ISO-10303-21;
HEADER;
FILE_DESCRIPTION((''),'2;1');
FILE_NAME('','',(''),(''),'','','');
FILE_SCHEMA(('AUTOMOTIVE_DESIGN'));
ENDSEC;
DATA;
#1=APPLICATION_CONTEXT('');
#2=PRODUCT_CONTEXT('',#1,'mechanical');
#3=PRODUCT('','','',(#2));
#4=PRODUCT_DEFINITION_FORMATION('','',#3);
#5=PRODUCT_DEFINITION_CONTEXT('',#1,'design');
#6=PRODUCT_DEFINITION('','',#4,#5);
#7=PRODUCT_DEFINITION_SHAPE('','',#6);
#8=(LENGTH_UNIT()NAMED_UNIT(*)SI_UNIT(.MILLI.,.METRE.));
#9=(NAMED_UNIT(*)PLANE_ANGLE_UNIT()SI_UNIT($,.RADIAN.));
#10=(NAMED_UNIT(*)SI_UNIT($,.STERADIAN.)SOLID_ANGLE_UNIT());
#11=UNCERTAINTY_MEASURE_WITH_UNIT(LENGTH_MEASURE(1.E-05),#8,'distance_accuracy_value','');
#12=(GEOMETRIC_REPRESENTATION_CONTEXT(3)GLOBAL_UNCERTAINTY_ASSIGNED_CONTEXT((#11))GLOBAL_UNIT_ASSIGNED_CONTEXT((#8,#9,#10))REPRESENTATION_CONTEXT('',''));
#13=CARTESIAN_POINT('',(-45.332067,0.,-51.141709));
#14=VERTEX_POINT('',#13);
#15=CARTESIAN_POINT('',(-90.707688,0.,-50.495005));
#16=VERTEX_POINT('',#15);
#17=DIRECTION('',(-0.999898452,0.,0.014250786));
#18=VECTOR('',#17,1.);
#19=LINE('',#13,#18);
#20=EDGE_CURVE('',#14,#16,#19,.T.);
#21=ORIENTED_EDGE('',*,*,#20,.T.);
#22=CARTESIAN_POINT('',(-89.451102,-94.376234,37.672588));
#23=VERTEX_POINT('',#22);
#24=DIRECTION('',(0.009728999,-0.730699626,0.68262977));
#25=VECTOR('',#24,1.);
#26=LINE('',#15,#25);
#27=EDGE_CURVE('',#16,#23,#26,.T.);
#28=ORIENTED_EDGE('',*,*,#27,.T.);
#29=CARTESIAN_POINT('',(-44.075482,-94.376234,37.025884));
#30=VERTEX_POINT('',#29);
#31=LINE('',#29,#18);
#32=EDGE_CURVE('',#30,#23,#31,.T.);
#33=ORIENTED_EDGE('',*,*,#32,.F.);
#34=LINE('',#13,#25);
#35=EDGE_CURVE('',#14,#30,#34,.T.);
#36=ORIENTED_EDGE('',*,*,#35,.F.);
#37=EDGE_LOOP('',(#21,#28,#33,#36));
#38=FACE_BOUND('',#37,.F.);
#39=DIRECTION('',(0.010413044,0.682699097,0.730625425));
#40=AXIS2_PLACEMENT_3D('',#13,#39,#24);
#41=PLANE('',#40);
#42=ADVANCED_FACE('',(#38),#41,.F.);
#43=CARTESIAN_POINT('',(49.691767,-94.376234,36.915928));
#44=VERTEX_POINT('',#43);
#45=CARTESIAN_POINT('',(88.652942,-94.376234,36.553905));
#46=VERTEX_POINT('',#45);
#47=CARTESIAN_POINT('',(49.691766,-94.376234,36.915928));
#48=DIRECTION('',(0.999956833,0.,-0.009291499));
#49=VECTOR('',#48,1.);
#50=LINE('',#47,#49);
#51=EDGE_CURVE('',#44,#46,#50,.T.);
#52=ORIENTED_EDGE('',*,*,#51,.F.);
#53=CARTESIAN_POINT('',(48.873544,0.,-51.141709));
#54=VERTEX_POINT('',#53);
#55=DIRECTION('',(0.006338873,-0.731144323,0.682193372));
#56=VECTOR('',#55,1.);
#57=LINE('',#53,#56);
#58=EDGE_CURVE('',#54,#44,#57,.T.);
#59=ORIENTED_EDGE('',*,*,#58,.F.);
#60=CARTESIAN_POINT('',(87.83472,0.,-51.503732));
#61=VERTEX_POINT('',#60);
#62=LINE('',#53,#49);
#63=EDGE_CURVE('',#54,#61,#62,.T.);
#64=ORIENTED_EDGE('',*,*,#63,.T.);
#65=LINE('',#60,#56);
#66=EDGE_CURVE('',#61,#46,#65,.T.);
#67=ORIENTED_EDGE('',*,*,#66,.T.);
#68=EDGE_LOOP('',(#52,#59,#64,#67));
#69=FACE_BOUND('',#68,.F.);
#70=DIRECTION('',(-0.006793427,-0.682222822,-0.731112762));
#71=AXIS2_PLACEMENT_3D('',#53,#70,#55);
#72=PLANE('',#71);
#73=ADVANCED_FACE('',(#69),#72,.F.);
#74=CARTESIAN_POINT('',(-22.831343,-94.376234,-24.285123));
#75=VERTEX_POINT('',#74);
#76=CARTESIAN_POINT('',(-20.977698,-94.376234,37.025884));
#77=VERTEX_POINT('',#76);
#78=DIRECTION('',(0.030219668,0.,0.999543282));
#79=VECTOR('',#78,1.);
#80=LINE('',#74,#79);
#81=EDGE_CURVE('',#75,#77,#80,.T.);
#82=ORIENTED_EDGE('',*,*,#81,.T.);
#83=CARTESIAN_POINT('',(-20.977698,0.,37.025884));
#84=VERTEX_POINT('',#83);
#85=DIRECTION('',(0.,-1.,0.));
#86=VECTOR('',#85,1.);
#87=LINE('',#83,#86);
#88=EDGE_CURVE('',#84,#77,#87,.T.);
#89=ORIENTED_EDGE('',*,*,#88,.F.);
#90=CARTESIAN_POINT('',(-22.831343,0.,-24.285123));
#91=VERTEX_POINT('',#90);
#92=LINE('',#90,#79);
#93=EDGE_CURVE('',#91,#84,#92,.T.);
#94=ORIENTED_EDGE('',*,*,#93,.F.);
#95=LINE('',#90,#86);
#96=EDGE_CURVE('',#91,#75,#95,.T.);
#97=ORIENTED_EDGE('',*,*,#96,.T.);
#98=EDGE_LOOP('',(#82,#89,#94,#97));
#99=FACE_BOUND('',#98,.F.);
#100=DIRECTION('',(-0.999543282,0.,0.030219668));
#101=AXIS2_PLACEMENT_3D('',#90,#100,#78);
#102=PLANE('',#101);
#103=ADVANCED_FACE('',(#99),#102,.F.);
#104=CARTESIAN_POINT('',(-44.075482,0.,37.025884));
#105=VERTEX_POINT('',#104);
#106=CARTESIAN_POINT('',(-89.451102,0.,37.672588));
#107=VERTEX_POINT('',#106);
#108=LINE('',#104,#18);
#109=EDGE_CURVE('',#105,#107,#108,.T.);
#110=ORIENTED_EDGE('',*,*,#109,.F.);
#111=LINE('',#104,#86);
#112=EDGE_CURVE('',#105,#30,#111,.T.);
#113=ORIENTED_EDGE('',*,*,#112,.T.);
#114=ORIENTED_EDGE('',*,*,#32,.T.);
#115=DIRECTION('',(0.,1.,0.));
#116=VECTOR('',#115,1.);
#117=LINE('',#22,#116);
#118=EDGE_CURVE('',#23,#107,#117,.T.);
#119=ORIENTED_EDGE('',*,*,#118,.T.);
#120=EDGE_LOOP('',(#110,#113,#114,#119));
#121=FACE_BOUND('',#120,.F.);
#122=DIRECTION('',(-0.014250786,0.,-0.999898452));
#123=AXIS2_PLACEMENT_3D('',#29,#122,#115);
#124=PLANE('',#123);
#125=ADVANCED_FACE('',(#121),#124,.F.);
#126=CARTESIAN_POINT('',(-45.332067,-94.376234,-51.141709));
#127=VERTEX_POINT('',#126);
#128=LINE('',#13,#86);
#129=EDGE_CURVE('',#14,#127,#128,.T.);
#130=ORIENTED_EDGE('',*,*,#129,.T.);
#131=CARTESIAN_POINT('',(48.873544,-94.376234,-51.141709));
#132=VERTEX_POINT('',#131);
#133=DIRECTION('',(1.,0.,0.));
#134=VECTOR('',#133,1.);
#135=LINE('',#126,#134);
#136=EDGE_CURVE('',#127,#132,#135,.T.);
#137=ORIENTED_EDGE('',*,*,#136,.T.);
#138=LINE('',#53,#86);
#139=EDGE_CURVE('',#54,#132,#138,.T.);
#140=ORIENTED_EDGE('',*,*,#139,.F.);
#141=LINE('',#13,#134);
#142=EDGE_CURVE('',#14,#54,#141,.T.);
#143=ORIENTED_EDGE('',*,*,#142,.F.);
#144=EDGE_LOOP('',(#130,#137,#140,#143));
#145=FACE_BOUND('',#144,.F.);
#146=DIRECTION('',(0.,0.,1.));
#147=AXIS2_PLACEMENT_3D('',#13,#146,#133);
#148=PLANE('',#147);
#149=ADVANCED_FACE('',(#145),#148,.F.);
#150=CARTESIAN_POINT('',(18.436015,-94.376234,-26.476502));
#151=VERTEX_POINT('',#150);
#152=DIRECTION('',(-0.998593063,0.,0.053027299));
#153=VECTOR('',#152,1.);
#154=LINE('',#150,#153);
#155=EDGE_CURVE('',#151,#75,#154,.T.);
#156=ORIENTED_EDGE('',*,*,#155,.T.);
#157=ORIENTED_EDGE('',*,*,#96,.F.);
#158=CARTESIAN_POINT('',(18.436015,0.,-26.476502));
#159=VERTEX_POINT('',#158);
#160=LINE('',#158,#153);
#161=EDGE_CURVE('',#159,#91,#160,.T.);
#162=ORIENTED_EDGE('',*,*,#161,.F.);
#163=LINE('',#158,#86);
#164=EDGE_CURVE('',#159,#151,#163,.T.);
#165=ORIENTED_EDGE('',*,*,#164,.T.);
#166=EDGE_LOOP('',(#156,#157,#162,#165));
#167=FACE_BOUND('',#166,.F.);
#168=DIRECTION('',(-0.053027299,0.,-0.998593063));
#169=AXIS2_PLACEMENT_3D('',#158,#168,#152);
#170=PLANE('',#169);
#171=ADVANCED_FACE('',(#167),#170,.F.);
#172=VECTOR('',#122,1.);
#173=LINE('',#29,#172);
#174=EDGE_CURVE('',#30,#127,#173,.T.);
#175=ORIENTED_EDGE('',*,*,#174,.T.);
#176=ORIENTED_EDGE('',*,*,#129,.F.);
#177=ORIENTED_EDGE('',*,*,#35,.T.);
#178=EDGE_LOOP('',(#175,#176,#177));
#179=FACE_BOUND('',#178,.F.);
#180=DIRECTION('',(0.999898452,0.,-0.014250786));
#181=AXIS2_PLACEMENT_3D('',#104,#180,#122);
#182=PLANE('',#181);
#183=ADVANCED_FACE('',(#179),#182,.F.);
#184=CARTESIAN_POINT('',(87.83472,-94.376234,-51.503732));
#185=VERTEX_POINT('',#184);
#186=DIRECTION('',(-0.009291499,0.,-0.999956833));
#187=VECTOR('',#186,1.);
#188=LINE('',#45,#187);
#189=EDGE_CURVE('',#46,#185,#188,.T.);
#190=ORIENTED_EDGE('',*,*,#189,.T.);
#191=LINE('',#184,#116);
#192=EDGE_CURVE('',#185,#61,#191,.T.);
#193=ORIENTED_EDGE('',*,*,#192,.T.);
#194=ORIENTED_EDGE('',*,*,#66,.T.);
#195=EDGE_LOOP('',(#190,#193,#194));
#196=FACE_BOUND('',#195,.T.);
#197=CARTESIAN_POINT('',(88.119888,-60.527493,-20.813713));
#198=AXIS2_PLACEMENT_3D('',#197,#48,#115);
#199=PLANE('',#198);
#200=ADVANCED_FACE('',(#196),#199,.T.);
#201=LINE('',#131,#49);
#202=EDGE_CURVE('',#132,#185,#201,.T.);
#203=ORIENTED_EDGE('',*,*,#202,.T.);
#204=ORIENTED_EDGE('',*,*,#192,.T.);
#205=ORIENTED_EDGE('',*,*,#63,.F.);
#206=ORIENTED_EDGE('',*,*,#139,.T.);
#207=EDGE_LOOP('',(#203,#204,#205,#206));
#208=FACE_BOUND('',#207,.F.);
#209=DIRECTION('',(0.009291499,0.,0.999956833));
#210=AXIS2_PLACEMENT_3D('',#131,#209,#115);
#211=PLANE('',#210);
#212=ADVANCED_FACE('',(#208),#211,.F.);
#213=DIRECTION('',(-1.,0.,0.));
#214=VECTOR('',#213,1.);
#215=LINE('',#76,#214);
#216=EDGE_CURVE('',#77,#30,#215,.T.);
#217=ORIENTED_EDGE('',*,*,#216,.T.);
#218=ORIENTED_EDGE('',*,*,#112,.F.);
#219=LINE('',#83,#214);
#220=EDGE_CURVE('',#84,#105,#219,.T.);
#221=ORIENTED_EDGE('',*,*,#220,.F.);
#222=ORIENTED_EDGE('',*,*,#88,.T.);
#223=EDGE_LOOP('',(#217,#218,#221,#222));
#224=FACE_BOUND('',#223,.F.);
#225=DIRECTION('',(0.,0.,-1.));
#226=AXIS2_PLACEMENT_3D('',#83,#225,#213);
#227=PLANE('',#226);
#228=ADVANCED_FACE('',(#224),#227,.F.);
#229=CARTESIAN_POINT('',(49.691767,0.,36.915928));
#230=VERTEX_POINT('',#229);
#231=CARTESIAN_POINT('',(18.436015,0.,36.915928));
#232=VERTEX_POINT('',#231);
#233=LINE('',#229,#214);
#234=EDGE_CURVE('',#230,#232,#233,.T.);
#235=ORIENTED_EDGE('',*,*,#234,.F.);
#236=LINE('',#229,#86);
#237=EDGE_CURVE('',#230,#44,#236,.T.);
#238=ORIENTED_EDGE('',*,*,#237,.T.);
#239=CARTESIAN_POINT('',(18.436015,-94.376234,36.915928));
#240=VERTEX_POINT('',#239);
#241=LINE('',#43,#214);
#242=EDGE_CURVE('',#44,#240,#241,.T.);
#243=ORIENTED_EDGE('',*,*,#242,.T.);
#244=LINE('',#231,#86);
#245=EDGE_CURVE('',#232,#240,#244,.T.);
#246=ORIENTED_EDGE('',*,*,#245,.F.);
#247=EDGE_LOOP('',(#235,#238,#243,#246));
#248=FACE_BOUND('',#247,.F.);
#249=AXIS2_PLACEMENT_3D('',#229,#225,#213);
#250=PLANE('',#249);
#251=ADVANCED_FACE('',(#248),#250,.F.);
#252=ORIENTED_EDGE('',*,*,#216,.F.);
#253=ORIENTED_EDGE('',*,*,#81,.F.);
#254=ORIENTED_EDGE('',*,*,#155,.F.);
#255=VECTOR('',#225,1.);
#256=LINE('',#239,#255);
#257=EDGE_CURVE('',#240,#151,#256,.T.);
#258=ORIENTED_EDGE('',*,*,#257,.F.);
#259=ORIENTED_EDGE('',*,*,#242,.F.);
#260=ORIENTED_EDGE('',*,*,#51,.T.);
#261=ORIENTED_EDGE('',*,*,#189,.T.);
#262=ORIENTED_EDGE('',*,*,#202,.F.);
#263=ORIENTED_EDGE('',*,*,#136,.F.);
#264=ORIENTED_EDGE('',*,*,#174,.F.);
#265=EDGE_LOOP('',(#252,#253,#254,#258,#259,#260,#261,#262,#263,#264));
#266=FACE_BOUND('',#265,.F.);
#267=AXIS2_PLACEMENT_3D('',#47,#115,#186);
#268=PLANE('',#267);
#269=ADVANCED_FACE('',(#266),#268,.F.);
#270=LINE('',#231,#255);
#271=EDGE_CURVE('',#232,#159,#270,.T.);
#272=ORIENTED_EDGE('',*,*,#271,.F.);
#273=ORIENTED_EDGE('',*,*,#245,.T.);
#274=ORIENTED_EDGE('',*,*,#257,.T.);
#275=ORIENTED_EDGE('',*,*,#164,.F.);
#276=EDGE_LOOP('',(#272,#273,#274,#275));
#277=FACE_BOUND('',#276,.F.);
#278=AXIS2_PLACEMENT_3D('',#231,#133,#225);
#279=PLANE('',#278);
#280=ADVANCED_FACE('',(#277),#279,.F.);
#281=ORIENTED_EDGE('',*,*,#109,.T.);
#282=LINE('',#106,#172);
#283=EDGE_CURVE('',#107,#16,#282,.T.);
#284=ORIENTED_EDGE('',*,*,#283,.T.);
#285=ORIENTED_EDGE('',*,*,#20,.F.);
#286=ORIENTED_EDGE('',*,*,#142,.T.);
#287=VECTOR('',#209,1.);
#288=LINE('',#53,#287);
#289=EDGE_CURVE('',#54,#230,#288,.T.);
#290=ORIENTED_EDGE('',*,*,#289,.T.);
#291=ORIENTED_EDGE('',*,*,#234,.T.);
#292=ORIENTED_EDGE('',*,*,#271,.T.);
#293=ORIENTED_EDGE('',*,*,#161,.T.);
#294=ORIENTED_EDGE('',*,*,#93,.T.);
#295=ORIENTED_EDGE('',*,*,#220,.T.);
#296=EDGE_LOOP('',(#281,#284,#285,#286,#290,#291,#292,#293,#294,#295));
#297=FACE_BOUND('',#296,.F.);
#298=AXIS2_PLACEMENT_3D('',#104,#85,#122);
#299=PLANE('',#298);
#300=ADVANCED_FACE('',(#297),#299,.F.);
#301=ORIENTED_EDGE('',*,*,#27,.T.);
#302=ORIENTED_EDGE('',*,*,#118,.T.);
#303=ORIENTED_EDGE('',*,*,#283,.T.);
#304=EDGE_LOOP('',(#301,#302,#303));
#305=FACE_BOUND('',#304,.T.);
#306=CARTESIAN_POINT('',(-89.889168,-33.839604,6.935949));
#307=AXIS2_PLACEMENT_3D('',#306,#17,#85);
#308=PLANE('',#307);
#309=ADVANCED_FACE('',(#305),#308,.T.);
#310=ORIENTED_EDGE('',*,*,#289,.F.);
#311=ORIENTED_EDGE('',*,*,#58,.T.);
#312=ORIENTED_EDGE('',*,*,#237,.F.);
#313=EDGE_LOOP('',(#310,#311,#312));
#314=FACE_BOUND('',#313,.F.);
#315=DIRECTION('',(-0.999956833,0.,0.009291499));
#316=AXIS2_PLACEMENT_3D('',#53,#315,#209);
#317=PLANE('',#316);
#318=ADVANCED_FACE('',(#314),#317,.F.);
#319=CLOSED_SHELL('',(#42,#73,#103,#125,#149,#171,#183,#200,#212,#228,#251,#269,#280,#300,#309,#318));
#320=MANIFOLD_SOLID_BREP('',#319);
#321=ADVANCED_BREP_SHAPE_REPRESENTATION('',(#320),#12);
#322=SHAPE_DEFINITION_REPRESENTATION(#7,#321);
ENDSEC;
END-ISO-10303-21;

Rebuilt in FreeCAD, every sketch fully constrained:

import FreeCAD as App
import Part
import Sketcher

V = App.Vector

doc = App.newDocument("Part")
params = doc.addObject("Spreadsheet::Sheet", "Params")
for row, (alias, value) in enumerate([
    ("pad1_length", "94.376234 mm"),
    ("pad2_length", "45.380229 mm"),
    ("pad3_length", "38.962858 mm"),
], start=1):
    params.set(f"A{row}", alias)
    params.set(f"B{row}", "=" + value)
    params.setAlias(f"B{row}", alias)

body = doc.addObject("PartDesign::Body", "Body")

# Sketch on XZ plane
sketch1 = body.newObject("Sketcher::SketchObject", "Sketch")
sketch1.AttachmentSupport = (doc.getObject("XZ_Plane"), [""])
sketch1.MapMode = "FlatFace"
sketch1.addGeometry([
    Part.LineSegment(V(-20.977698, 37.025884, 0), V(-44.075482, 37.025884, 0)),  # 0
    Part.LineSegment(V(-44.075482, 37.025884, 0), V(-45.332067, -51.141709, 0)),  # 1
    Part.LineSegment(V(-45.332067, -51.141709, 0), V(48.873544, -51.141709, 0)),  # 2
    Part.LineSegment(V(48.873544, -51.141709, 0), V(49.691767, 36.915928, 0)),  # 3
    Part.LineSegment(V(49.691767, 36.915928, 0), V(18.436015, 36.915928, 0)),  # 4
    Part.LineSegment(V(18.436015, 36.915928, 0), V(18.436015, -26.476502, 0)),  # 5
    Part.LineSegment(V(18.436015, -26.476502, 0), V(-22.831343, -24.285123, 0)),  # 6
    Part.LineSegment(V(-22.831343, -24.285123, 0), V(-20.977698, 37.025884, 0)),  # 7
], False)
sketch1.addConstraint([
    Sketcher.Constraint("Coincident", 0, 2, 1, 1),
    Sketcher.Constraint("Coincident", 1, 2, 2, 1),
    Sketcher.Constraint("Coincident", 2, 2, 3, 1),
    Sketcher.Constraint("Coincident", 3, 2, 4, 1),
    Sketcher.Constraint("Coincident", 4, 2, 5, 1),
    Sketcher.Constraint("Coincident", 5, 2, 6, 1),
    Sketcher.Constraint("Coincident", 6, 2, 7, 1),
    Sketcher.Constraint("Coincident", 7, 2, 0, 1),
    Sketcher.Constraint("Horizontal", 0),
    Sketcher.Constraint("Horizontal", 2),
    Sketcher.Constraint("Horizontal", 4),
    Sketcher.Constraint("Vertical", 5),
    Sketcher.Constraint("Distance", 6, 41.3255),
    Sketcher.Constraint("DistanceX", 2, 1, 2, 2, 94.20561),
    Sketcher.Constraint("DistanceX", 4, 2, 4, 1, 31.255752),
    Sketcher.Constraint("DistanceY", 5, 2, 5, 1, 63.392431),
    Sketcher.Constraint("DistanceX", 7, 2, -1, 1, 20.977698),
    Sketcher.Constraint("Distance", 3, 88.061439),
    Sketcher.Constraint("Distance", 7, 61.339021),
    Sketcher.Constraint("DistanceX", 0, 2, 0, 1, 23.097783),
    Sketcher.Constraint("DistanceY", 1, 2, -1, 1, 51.141709),
    Sketcher.Constraint("DistanceY", -1, 1, 3, 2, 36.915928),
    Sketcher.Constraint("DistanceX", 0, 2, 3, 2, 93.767248),
    Sketcher.Constraint("DistanceY", 5, 2, 6, 2, 2.19138),
])
pad1 = body.newObject("PartDesign::Pad", "Pad")
pad1.Profile = sketch1
pad1.setExpression("Length", "Params.pad1_length")

# Sketch on an angled plane
sketch2 = body.newObject("Sketcher::SketchObject", "Sketch001")
sketch2.Placement = App.Placement(V(-44.594125, 0, 0.635566), App.Rotation(V(0, -1, 0), V(0.014250786, 0, 0.999898452), V(-0.999898452, 0, 0.014250786), "ZXY"))
sketch2.addGeometry([
    Part.LineSegment(V(0, -51.782533, 0), V(94.376234, 36.394014, 0)),
    Part.LineSegment(V(94.376234, 36.394014, 0), V(0, 36.394014, 0)),
    Part.LineSegment(V(0, 36.394014, 0), V(0, -51.782533, 0)),
], False)
sketch2.addConstraint([
    Sketcher.Constraint("Coincident", 0, 2, 1, 1),
    Sketcher.Constraint("Coincident", 1, 2, 2, 1),
    Sketcher.Constraint("Coincident", 2, 2, 0, 1),
    Sketcher.Constraint("Horizontal", 1),
    Sketcher.Constraint("Vertical", 2),
    Sketcher.Constraint("PointOnObject", 1, 2, -2),
    Sketcher.Constraint("Distance", 0, 129.158728),
    Sketcher.Constraint("DistanceX", 1, 2, 1, 1, 94.376234),
    Sketcher.Constraint("DistanceY", -1, 1, 0, 2, 36.394014),
])
pad2 = body.newObject("PartDesign::Pad", "Pad001")
pad2.Profile = sketch2
pad2.setExpression("Length", "Params.pad2_length")

# Sketch on an angled plane
sketch3 = body.newObject("Sketcher::SketchObject", "Sketch002")
sketch3.Placement = App.Placement(V(49.344487, 0, -0.458504), App.Rotation(V(0, 1, 0), V(0.009291499, 0, 0.999956833), V(0.999956833, 0, -0.009291499), "ZXY"))
sketch3.addGeometry([
    Part.LineSegment(V(0, -50.685393, 0), V(-94.376234, 37.376046, 0)),
    Part.LineSegment(V(-94.376234, 37.376046, 0), V(-94.376234, -50.685393, 0)),
    Part.LineSegment(V(-94.376234, -50.685393, 0), V(0, -50.685393, 0)),
], False)
sketch3.addConstraint([
    Sketcher.Constraint("Coincident", 0, 2, 1, 1),
    Sketcher.Constraint("Coincident", 1, 2, 2, 1),
    Sketcher.Constraint("Coincident", 2, 2, 0, 1),
    Sketcher.Constraint("Vertical", 1),
    Sketcher.Constraint("Horizontal", 2),
    Sketcher.Constraint("PointOnObject", 2, 2, -2),
    Sketcher.Constraint("DistanceY", 1, 2, 1, 1, 88.061439),
    Sketcher.Constraint("Distance", 0, 129.080171),
    Sketcher.Constraint("DistanceY", -1, 1, 0, 2, 37.376046),
])
pad3 = body.newObject("PartDesign::Pad", "Pad002")
pad3.Profile = sketch3
pad3.setExpression("Length", "Params.pad3_length")

doc.recompute()
